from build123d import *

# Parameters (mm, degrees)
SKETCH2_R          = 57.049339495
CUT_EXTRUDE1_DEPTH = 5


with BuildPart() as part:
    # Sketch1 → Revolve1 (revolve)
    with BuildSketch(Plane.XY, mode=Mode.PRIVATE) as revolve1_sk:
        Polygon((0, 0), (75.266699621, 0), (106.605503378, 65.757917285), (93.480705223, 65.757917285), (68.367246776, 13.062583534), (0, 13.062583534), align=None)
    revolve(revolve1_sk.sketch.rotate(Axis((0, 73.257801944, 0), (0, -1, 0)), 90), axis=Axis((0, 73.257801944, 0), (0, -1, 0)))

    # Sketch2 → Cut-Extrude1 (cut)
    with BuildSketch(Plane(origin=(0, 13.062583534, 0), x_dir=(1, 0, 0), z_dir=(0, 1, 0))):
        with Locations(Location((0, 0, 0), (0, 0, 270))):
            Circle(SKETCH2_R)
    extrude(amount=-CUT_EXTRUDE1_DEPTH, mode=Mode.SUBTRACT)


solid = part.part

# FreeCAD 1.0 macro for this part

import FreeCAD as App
import Part
import Sketcher

V = App.Vector


def add_polygon(sketch, points):
    """Adds a closed chain of lines whose ends are joined by coincident constraints."""
    first, n = sketch.GeometryCount, len(points)
    for a, b in zip(points, points[1:] + points[:1]):
        sketch.addGeometry(Part.LineSegment(App.Vector(*a, 0), App.Vector(*b, 0)), False)
    for i in range(n):
        sketch.addConstraint(Sketcher.Constraint("Coincident", first + i, 2, first + (i + 1) % n, 1))

doc = App.newDocument("Part")
body = doc.addObject("PartDesign::Body", "Body")

sketch1 = doc.addObject("Sketcher::SketchObject", "Sketch")
body.addObject(sketch1)
sketch1.AttachmentSupport = (doc.XY_Plane, [""])
sketch1.MapMode = "FlatFace"
add_polygon(sketch1, [(0, 0), (75, 0), (107, 66), (93, 66), (68, 13), (0, 13)])
sketch1.addConstraint([
    Sketcher.Constraint("Horizontal", 0),
    Sketcher.Constraint("Horizontal", 2),
    Sketcher.Constraint("Horizontal", 4),
    Sketcher.Constraint("Vertical", 5),
    Sketcher.Constraint("Coincident", 5, 2, -1, 1),
    Sketcher.Constraint("Parallel", 1, 3),
    Sketcher.Constraint("DistanceX", 0, 1, 0, 2, 75.2667),
    Sketcher.Constraint("DistanceX", 2, 2, 2, 1, 13.124798),
    Sketcher.Constraint("Distance", 3, 58.373658),
    Sketcher.Constraint("DistanceX", 4, 2, 4, 1, 68.367247),
    Sketcher.Constraint("DistanceY", 5, 2, 5, 1, 13.062584),
])
revolution = doc.addObject("PartDesign::Revolution", "Revolution")
body.addObject(revolution)
revolution.Profile = sketch1
revolution.ReferenceAxis = (sketch1, ["V_Axis"])
revolution.Angle = 360

sketch2 = doc.addObject("Sketcher::SketchObject", "Sketch001")
body.addObject(sketch2)
sketch2.AttachmentSupport = (doc.XZ_Plane, [""])
sketch2.MapMode = "FlatFace"
sketch2.AttachmentOffset = App.Placement(V(0, 0, -13.062584), App.Rotation())
sketch2.addGeometry(Part.Circle(V(0, 0, 0), V(0, 0, 1), 57), False)
sketch2.addConstraint([
    Sketcher.Constraint("Coincident", 0, 3, -1, 1),
    Sketcher.Constraint("Diameter", 0, 114.098679),
])
pocket1 = doc.addObject("PartDesign::Pocket", "Pocket")
body.addObject(pocket1)
pocket1.Profile = sketch2
pocket1.Length = 5
pocket1.Reversed = True

doc.recompute()
